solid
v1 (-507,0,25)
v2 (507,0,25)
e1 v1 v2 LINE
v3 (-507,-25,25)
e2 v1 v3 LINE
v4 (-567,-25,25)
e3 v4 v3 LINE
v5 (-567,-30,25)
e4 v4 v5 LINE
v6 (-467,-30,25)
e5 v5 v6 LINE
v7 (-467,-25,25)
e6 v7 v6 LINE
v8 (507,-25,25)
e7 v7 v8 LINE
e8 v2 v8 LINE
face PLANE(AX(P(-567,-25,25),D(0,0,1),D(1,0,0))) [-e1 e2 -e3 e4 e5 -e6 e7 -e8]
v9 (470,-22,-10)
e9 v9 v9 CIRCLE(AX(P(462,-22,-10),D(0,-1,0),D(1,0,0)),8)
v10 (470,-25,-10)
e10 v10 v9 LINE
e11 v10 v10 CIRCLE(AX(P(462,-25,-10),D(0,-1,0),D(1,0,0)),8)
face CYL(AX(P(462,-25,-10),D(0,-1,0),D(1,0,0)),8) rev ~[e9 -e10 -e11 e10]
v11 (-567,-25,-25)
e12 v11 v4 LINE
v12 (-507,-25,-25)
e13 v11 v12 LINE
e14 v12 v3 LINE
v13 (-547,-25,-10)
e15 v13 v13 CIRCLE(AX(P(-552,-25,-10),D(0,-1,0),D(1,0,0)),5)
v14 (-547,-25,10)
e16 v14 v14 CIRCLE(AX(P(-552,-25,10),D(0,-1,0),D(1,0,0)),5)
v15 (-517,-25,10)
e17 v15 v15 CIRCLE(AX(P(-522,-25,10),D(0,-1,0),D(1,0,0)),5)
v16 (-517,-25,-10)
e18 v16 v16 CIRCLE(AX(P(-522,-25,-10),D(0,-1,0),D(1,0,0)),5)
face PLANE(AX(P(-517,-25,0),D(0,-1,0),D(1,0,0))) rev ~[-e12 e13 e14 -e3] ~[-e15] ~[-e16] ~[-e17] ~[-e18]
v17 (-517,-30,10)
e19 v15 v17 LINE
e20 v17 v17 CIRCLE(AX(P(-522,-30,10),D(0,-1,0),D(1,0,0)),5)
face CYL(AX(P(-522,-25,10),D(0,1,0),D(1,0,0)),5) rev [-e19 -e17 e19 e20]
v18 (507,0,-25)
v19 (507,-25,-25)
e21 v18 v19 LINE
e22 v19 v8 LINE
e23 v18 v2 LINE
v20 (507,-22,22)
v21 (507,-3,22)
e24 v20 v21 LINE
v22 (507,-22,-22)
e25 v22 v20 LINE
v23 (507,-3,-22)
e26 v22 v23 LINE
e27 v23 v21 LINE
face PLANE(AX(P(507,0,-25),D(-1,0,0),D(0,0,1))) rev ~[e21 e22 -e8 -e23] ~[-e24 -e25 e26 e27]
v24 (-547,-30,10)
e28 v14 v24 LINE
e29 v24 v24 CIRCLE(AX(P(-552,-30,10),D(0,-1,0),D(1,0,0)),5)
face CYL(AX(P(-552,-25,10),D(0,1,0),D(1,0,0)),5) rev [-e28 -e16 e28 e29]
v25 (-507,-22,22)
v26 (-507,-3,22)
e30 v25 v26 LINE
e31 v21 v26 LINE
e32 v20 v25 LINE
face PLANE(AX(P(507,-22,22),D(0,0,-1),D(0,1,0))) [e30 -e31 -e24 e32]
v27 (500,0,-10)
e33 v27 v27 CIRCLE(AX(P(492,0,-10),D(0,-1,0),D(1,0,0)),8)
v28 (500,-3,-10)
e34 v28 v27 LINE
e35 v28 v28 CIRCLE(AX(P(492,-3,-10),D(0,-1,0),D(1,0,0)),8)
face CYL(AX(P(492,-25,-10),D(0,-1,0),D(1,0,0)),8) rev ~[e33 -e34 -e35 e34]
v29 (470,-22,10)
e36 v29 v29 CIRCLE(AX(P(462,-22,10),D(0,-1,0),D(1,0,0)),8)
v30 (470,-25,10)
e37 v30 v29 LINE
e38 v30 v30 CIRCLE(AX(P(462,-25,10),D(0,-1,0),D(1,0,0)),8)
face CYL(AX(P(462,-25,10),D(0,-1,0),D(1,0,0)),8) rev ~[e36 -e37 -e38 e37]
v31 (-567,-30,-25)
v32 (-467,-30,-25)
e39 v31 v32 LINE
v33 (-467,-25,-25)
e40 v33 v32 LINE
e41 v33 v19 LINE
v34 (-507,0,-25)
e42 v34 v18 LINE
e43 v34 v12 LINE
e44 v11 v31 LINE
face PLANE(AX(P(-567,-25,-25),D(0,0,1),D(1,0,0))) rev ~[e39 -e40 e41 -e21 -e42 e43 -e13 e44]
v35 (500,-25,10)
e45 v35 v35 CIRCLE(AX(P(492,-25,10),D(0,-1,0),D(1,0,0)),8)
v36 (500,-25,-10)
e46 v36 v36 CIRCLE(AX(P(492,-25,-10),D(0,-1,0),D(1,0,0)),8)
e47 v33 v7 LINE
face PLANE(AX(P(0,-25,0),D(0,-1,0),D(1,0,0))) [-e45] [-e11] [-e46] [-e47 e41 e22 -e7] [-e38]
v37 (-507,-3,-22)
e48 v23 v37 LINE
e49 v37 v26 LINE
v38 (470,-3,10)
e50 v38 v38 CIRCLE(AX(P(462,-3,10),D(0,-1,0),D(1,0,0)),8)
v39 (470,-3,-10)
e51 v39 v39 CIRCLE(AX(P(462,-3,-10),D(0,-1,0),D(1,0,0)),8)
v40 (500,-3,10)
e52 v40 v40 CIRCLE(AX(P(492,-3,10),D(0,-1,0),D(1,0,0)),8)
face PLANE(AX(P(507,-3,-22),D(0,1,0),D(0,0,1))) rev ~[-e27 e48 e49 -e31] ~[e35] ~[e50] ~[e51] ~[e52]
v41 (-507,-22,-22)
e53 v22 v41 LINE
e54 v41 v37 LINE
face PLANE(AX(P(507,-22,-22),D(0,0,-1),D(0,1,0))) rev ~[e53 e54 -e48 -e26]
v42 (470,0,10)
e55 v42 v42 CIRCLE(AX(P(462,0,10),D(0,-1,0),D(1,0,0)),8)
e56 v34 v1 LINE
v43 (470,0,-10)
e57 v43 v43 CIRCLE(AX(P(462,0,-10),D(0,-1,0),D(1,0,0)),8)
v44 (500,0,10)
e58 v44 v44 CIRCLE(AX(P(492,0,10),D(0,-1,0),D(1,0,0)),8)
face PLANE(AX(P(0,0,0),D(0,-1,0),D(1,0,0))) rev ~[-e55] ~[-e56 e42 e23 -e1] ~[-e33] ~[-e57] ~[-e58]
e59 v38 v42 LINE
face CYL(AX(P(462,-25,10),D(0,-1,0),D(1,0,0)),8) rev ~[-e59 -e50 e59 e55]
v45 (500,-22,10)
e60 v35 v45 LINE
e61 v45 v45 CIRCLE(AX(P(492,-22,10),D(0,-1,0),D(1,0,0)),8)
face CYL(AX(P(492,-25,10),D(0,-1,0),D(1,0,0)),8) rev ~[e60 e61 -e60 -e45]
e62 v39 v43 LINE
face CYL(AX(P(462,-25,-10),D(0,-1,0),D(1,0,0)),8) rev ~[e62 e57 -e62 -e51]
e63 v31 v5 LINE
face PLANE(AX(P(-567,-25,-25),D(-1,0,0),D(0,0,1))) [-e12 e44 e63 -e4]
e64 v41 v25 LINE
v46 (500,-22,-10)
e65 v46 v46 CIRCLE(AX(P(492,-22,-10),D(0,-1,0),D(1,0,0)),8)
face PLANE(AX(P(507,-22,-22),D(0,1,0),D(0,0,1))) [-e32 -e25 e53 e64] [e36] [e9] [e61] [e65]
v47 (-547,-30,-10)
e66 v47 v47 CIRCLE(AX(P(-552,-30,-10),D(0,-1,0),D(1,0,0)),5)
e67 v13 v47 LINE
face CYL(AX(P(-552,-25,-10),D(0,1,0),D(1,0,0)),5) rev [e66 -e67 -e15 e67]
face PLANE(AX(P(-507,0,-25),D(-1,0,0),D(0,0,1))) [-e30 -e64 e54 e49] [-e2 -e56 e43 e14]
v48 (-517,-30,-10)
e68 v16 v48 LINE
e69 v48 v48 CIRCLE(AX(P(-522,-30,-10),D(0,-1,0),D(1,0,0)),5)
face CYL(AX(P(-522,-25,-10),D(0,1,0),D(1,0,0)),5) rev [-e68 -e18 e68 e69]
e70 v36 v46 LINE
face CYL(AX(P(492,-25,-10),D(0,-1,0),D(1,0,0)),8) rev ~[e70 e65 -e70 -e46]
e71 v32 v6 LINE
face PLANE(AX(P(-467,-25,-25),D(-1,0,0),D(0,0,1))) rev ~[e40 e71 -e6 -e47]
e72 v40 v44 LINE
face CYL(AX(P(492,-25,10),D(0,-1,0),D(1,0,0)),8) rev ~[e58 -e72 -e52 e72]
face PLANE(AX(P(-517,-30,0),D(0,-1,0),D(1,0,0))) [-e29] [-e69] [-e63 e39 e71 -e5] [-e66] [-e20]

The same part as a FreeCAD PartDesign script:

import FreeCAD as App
import Part
import Sketcher
from FreeCAD import Vector
Q = App.Units.Quantity


def add_polygon(sketch, points):
    """Adds a closed chain of lines whose ends are joined by coincident constraints."""
    first, n = sketch.GeometryCount, len(points)
    for a, b in zip(points, points[1:] + points[:1]):
        sketch.addGeometry(Part.LineSegment(App.Vector(*a, 0), App.Vector(*b, 0)), False)
    for i in range(n):
        sketch.addConstraint(Sketcher.Constraint("Coincident", first + i, 2, first + (i + 1) % n, 1))

doc = App.newDocument("Part")
params = doc.addObject("Spreadsheet::Sheet", "Params")
for row, (alias, value) in enumerate([
    ("sketch1_width", "1014 mm"),
    ("sketch1_height", "50 mm"),
    ("pad1_length", "25 mm"),
    ("sketch2_diameter", "16 mm"),
    ("pocket1_length", "25 mm"),
    ("sketch3_width", "19 mm"),
    ("sketch3_height", "44 mm"),
    ("pocket2_length", "1014 mm"),
    ("sketch4_diameter", "10 mm"),
    ("sketch4_width", "100 mm"),
    ("sketch4_height", "50 mm"),
    ("pad2_length", "5 mm"),
], start=1):
    params.set(f"A{row}", alias)
    params.set(f"B{row}", "=" + value)
    params.setAlias(f"B{row}", alias)

body = doc.addObject("PartDesign::Body", "Body")

# Sketch on XZ plane
sketch1 = body.newObject("Sketcher::SketchObject", "Sketch")
sketch1.AttachmentSupport = (doc.getObject("XZ_Plane"), [""])
sketch1.MapMode = "FlatFace"
add_polygon(sketch1, [(-507, 25), (-507, -25), (507, -25), (507, 25)])  # lines 0-3
sketch1.addConstraint(Sketcher.Constraint("Vertical", 0))
sketch1.addConstraint(Sketcher.Constraint("Horizontal", 1))
sketch1.addConstraint(Sketcher.Constraint("Vertical", 2))
sketch1.addConstraint(Sketcher.Constraint("Horizontal", 3))
sketch1.addConstraint(Sketcher.Constraint("Symmetric", 0, 2, 2, 2, -1, 1))
sketch1.addConstraint(Sketcher.Constraint("DistanceX", 1, 1, 1, 2, Q("1014 mm")))
sketch1.addConstraint(Sketcher.Constraint("DistanceY", 0, 2, 0, 1, Q("50 mm")))
sketch1.setExpression("Constraints[9]", "Params.sketch1_width")
sketch1.setExpression("Constraints[10]", "Params.sketch1_height")
pad1 = body.newObject("PartDesign::Pad", "Pad")
pad1.Profile = sketch1
pad1.setExpression("Length", "Params.pad1_length")

# Sketch on XZ plane
sketch2 = body.newObject("Sketcher::SketchObject", "Sketch001")
sketch2.AttachmentSupport = (doc.getObject("XZ_Plane"), [""])
sketch2.MapMode = "FlatFace"
sketch2.AttachmentOffset = App.Placement(Vector(0, 0, 25), App.Rotation())
sketch2.addGeometry(Part.Circle(Vector(462, 10, 0), Vector(0, 0, 1), 8), False)
sketch2.addGeometry(Part.Circle(Vector(462, -10, 0), Vector(0, 0, 1), 8), False)
sketch2.addGeometry(Part.Circle(Vector(492, 10, 0), Vector(0, 0, 1), 8), False)
sketch2.addGeometry(Part.Circle(Vector(492, -10, 0), Vector(0, 0, 1), 8), False)
sketch2.addConstraint(Sketcher.Constraint("Equal", 0, 1))
sketch2.addConstraint(Sketcher.Constraint("Equal", 1, 2))
sketch2.addConstraint(Sketcher.Constraint("Equal", 2, 3))
sketch2.addConstraint(Sketcher.Constraint("Symmetric", 0, 3, 1, 3, -1))
sketch2.addConstraint(Sketcher.Constraint("Symmetric", 2, 3, 3, 3, -1))
sketch2.addConstraint(Sketcher.Constraint("Horizontal", 0, 3, 2, 3))
sketch2.addConstraint(Sketcher.Constraint("Diameter", 0, Q("16 mm")))
sketch2.addConstraint(Sketcher.Constraint("DistanceX", -1, 1, 0, 3, Q("462 mm")))
sketch2.addConstraint(Sketcher.Constraint("DistanceY", -1, 1, 0, 3, Q("10 mm")))
sketch2.addConstraint(Sketcher.Constraint("DistanceX", -1, 1, 2, 3, Q("492 mm")))
sketch2.setExpression("Constraints[6]", "Params.sketch2_diameter")
pocket1 = body.newObject("PartDesign::Pocket", "Pocket")
pocket1.Profile = sketch2
pocket1.setExpression("Length", "Params.pocket1_length")

# Sketch on YZ plane
sketch3 = body.newObject("Sketcher::SketchObject", "Sketch002")
sketch3.AttachmentSupport = (doc.getObject("YZ_Plane"), [""])
sketch3.MapMode = "FlatFace"
sketch3.AttachmentOffset = App.Placement(Vector(0, 0, 507), App.Rotation())
add_polygon(sketch3, [(-22, 22), (-22, -22), (-3, -22), (-3, 22)])  # lines 0-3
sketch3.addConstraint(Sketcher.Constraint("Vertical", 0))
sketch3.addConstraint(Sketcher.Constraint("Horizontal", 1))
sketch3.addConstraint(Sketcher.Constraint("Vertical", 2))
sketch3.addConstraint(Sketcher.Constraint("Horizontal", 3))
sketch3.addConstraint(Sketcher.Constraint("DistanceX", 1, 1, 1, 2, Q("19 mm")))
sketch3.addConstraint(Sketcher.Constraint("DistanceY", 0, 2, 0, 1, Q("44 mm")))
sketch3.addConstraint(Sketcher.Constraint("DistanceX", 0, 2, -1, 1, Q("22 mm")))
sketch3.addConstraint(Sketcher.Constraint("DistanceY", 0, 2, -1, 1, Q("22 mm")))
sketch3.setExpression("Constraints[8]", "Params.sketch3_width")
sketch3.setExpression("Constraints[9]", "Params.sketch3_height")
pocket2 = body.newObject("PartDesign::Pocket", "Pocket001")
pocket2.Profile = sketch3
pocket2.setExpression("Length", "Params.pocket2_length")

# Sketch on XZ plane
sketch4 = body.newObject("Sketcher::SketchObject", "Sketch003")
sketch4.AttachmentSupport = (doc.getObject("XZ_Plane"), [""])
sketch4.MapMode = "FlatFace"
sketch4.AttachmentOffset = App.Placement(Vector(0, 0, 25), App.Rotation())
add_polygon(sketch4, [(-567, 25), (-567, -25), (-467, -25), (-467, 25)])  # lines 0-3
sketch4.addGeometry(Part.Circle(Vector(-552, -10, 0), Vector(0, 0, 1), 5), False)  # 4
sketch4.addGeometry(Part.Circle(Vector(-522, -10, 0), Vector(0, 0, 1), 5), False)  # 5
sketch4.addGeometry(Part.Circle(Vector(-552, 10, 0), Vector(0, 0, 1), 5), False)  # 6
sketch4.addGeometry(Part.Circle(Vector(-522, 10, 0), Vector(0, 0, 1), 5), False)  # 7
sketch4.addConstraint(Sketcher.Constraint("Vertical", 0))
sketch4.addConstraint(Sketcher.Constraint("Horizontal", 1))
sketch4.addConstraint(Sketcher.Constraint("Vertical", 2))
sketch4.addConstraint(Sketcher.Constraint("Horizontal", 3))
sketch4.addConstraint(Sketcher.Constraint("Equal", 4, 5))
sketch4.addConstraint(Sketcher.Constraint("Equal", 5, 6))
sketch4.addConstraint(Sketcher.Constraint("Equal", 6, 7))
sketch4.addConstraint(Sketcher.Constraint("Symmetric", 4, 3, 6, 3, -1))
sketch4.addConstraint(Sketcher.Constraint("Symmetric", 5, 3, 7, 3, -1))
sketch4.addConstraint(Sketcher.Constraint("Horizontal", 4, 3, 5, 3))
sketch4.addConstraint(Sketcher.Constraint("Diameter", 4, Q("10 mm")))
sketch4.addConstraint(Sketcher.Constraint("DistanceX", 1, 1, 1, 2, Q("100 mm")))
sketch4.addConstraint(Sketcher.Constraint("DistanceY", 0, 2, 0, 1, Q("50 mm")))
sketch4.addConstraint(Sketcher.Constraint("DistanceX", 4, 3, -1, 1, Q("552 mm")))
sketch4.addConstraint(Sketcher.Constraint("DistanceY", 4, 3, -1, 1, Q("10 mm")))
sketch4.addConstraint(Sketcher.Constraint("DistanceX", 5, 3, -1, 1, Q("522 mm")))
sketch4.addConstraint(Sketcher.Constraint("DistanceX", 0, 2, -1, 1, Q("567 mm")))
sketch4.addConstraint(Sketcher.Constraint("DistanceY", 0, 2, -1, 1, Q("25 mm")))
sketch4.setExpression("Constraints[14]", "Params.sketch4_diameter")
sketch4.setExpression("Constraints[15]", "Params.sketch4_width")
sketch4.setExpression("Constraints[16]", "Params.sketch4_height")
pad2 = body.newObject("PartDesign::Pad", "Pad001")
pad2.Profile = sketch4
pad2.setExpression("Length", "Params.pad2_length")

doc.recompute()
